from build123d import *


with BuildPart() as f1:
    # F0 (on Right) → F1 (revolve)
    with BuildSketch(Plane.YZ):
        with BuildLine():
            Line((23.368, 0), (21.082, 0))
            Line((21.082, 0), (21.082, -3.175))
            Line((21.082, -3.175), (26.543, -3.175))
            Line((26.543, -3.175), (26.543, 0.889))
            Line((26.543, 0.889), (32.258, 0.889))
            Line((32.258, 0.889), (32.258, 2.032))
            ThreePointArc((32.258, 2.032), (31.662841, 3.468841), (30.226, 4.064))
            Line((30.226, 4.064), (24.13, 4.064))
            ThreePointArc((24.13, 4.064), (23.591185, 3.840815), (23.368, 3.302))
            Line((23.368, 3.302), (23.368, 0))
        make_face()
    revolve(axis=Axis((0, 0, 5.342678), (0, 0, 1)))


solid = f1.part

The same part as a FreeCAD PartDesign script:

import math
import FreeCAD as App
import Part
import Sketcher
Q = App.Units.Quantity

doc = App.newDocument("Part")
body = doc.addObject("PartDesign::Body", "Body")

# Sketch on YZ plane
sketch1 = body.newObject("Sketcher::SketchObject", "Sketch")
sketch1.AttachmentSupport = (doc.getObject("YZ_Plane"), [""])
sketch1.MapMode = "FlatFace"
sketch1.addGeometry([
    Part.LineSegment(App.Vector(23.4, 0, 0), App.Vector(21.1, 0, 0)),  # 0
    Part.LineSegment(App.Vector(21.1, 0, 0), App.Vector(21.1, -3.2, 0)),  # 1
    Part.LineSegment(App.Vector(21.1, -3.2, 0), App.Vector(26.5, -3.2, 0)),  # 2
    Part.LineSegment(App.Vector(26.5, -3.2, 0), App.Vector(26.5, 0.9, 0)),  # 3
    Part.LineSegment(App.Vector(26.5, 0.9, 0), App.Vector(32.3, 0.9, 0)),  # 4
    Part.LineSegment(App.Vector(32.3, 0.9, 0), App.Vector(32.3, 2, 0)),  # 5
    Part.ArcOfCircle(Part.Circle(App.Vector(30.2, 2, 0), App.Vector(0, 0, 1), 2), math.radians(0), math.radians(90)),  # 6
    Part.LineSegment(App.Vector(30.2, 4.1, 0), App.Vector(24.1, 4.1, 0)),  # 7
    Part.ArcOfCircle(Part.Circle(App.Vector(24.1, 3.3, 0), App.Vector(0, 0, 1), 0.8), math.radians(90), math.radians(180)),  # 8
    Part.LineSegment(App.Vector(23.4, 3.3, 0), App.Vector(23.4, 0, 0)),  # 9
], False)
sketch1.addConstraint([
    Sketcher.Constraint("Coincident", 0, 2, 1, 1),
    Sketcher.Constraint("Coincident", 1, 2, 2, 1),
    Sketcher.Constraint("Coincident", 2, 2, 3, 1),
    Sketcher.Constraint("Coincident", 3, 2, 4, 1),
    Sketcher.Constraint("Coincident", 4, 2, 5, 1),
    Sketcher.Constraint("Tangent", 5, 2, 6, 1),
    Sketcher.Constraint("Tangent", 6, 2, 7, 1),
    Sketcher.Constraint("Tangent", 7, 2, 8, 1),
    Sketcher.Constraint("Tangent", 8, 2, 9, 1),
    Sketcher.Constraint("Coincident", 9, 2, 0, 1),
    Sketcher.Constraint("Horizontal", 0),
    Sketcher.Constraint("Vertical", 1),
    Sketcher.Constraint("Horizontal", 2),
    Sketcher.Constraint("Vertical", 3),
    Sketcher.Constraint("Horizontal", 4),
    Sketcher.Constraint("Vertical", 5),
    Sketcher.Constraint("Horizontal", 7),
    Sketcher.Constraint("Vertical", 9),
    Sketcher.Constraint("PointOnObject", 0, 2, -1),
    Sketcher.Constraint("Radius", 6, Q("0.08 in")),
    Sketcher.Constraint("Radius", 8, Q("0.03 in")),
    Sketcher.Constraint("DistanceX", 0, 2, 0, 1, Q("0.09 in")),
    Sketcher.Constraint("DistanceX", 7, 2, 7, 1, Q("0.24 in")),
    Sketcher.Constraint("DistanceY", 3, 1, 3, 2, Q("0.16 in")),
    Sketcher.Constraint("DistanceY", 9, 2, 9, 1, Q("0.13 in")),
    Sketcher.Constraint("DistanceX", 2, 1, 2, 2, Q("0.215 in")),
    Sketcher.Constraint("DistanceY", 1, 2, 1, 1, Q("0.125 in")),
    Sketcher.Constraint("DistanceX", -1, 1, 6, 3, Q("1.19 in")),
])
revolution = body.newObject("PartDesign::Revolution", "Revolution")
revolution.Profile = sketch1
revolution.ReferenceAxis = (sketch1, ["V_Axis"])
revolution.Angle = 360

doc.recompute()
